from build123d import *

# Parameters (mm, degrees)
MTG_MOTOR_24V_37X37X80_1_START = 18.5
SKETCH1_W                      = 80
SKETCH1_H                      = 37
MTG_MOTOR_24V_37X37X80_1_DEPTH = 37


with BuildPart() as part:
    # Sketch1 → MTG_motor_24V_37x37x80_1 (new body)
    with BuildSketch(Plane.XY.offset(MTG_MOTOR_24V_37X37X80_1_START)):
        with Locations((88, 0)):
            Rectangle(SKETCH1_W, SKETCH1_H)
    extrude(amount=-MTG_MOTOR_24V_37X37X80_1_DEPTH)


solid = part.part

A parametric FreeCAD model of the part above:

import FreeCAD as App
import Part
import Sketcher
from FreeCAD import Vector

doc = App.newDocument("Part")
body = doc.addObject("PartDesign::Body", "Body")

sketch1 = body.newObject("Sketcher::SketchObject", "Sketch")
sketch1.AttachmentSupport = (doc.getObject("XY_Plane"), [""])
sketch1.MapMode = "FlatFace"
sketch1.AttachmentOffset = App.Placement(Vector(0, 0, 18.5), App.Rotation())
sketch1.addGeometry([
    Part.LineSegment(Vector(48, 18.5, 0), Vector(48, -18.5, 0)),
    Part.LineSegment(Vector(48, -18.5, 0), Vector(128, -18.5, 0)),
    Part.LineSegment(Vector(128, -18.5, 0), Vector(128, 18.5, 0)),
    Part.LineSegment(Vector(128, 18.5, 0), Vector(48, 18.5, 0)),
], False)
sketch1.addConstraint([
    Sketcher.Constraint("Coincident", 0, 2, 1, 1),
    Sketcher.Constraint("Coincident", 1, 2, 2, 1),
    Sketcher.Constraint("Coincident", 2, 2, 3, 1),
    Sketcher.Constraint("Coincident", 3, 2, 0, 1),
    Sketcher.Constraint("Vertical", 0),
    Sketcher.Constraint("Horizontal", 1),
    Sketcher.Constraint("Vertical", 2),
    Sketcher.Constraint("Horizontal", 3),
    Sketcher.Constraint("DistanceX", 1, 1, 1, 2, 80.0),
    Sketcher.Constraint("DistanceY", 0, 2, 0, 1, 37.0),
    Sketcher.Constraint("DistanceX", -1, 1, 0, 2, 48.0),
    Sketcher.Constraint("DistanceY", 0, 2, -1, 1, 18.5),
])
pad1 = body.newObject("PartDesign::Pad", "Pad")
pad1.Profile = sketch1
pad1.Length = 37
pad1.Reversed = True

doc.recompute()
